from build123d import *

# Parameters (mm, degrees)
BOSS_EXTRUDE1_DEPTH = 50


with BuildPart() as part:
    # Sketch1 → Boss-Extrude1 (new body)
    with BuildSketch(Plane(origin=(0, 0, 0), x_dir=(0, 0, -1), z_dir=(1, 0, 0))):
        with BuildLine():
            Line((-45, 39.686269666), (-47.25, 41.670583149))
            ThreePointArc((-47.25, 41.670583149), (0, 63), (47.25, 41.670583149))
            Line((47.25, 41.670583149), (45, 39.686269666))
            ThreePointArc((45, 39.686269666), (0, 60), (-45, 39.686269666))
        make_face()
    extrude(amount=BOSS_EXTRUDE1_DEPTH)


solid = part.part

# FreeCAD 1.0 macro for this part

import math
import FreeCAD as App
import Part
import Sketcher
from FreeCAD import Vector

doc = App.newDocument("Part")
params = doc.addObject("Spreadsheet::Sheet", "Params")
for row, (alias, value) in enumerate([
    ("sketch1_radius", "60 mm"),
    ("sketch1_radius2", "63 mm"),
    ("pad1_length", "50 mm"),
], start=1):
    params.set(f"A{row}", alias)
    params.set(f"B{row}", "=" + value)
    params.setAlias(f"B{row}", alias)

body = doc.addObject("PartDesign::Body", "Body")

sketch1 = doc.addObject("Sketcher::SketchObject", "Sketch")
body.addObject(sketch1)
sketch1.AttachmentSupport = (doc.YZ_Plane, [""])
sketch1.MapMode = "FlatFace"
sketch1.addGeometry([
    Part.LineSegment(Vector(41.7, 47.2, 0), Vector(39.7, 45, 0)),
    Part.ArcOfCircle(Part.Circle(Vector(0, 0, 0), Vector(0, 0, 1), 60), math.radians(-49), math.radians(49)),
    Part.LineSegment(Vector(39.7, -45, 0), Vector(41.7, -47.2, 0)),
    Part.ArcOfCircle(Part.Circle(Vector(0, 0, 0), Vector(0, 0, 1), 63), math.radians(-49), math.radians(49)),
], False)
sketch1.addConstraint([
    Sketcher.Constraint("Coincident", 0, 2, 1, 2),
    Sketcher.Constraint("Coincident", 1, 1, 2, 1),
    Sketcher.Constraint("Coincident", 2, 2, 3, 1),
    Sketcher.Constraint("Coincident", 3, 2, 0, 1),
    Sketcher.Constraint("Coincident", 1, 3, -1, 1),
    Sketcher.Constraint("Coincident", 3, 3, -1, 1),
    Sketcher.Constraint("Vertical", 0, 2, 1, 1),
    Sketcher.Constraint("Vertical", 2, 2, 3, 2),
    Sketcher.Constraint("Radius", 1, 60.0),
    Sketcher.Constraint("Radius", 3, 63.0),
    Sketcher.Constraint("DistanceY", -1, 1, 0, 2, 45.0),
    Sketcher.Constraint("DistanceY", 2, 2, 3, 2, 94.5),
])
sketch1.setExpression("Constraints[8]", "Params.sketch1_radius")
sketch1.setExpression("Constraints[9]", "Params.sketch1_radius2")
pad1 = doc.addObject("PartDesign::Pad", "Pad")
body.addObject(pad1)
pad1.Profile = sketch1
pad1.setExpression("Length", "Params.pad1_length")

doc.recompute()
